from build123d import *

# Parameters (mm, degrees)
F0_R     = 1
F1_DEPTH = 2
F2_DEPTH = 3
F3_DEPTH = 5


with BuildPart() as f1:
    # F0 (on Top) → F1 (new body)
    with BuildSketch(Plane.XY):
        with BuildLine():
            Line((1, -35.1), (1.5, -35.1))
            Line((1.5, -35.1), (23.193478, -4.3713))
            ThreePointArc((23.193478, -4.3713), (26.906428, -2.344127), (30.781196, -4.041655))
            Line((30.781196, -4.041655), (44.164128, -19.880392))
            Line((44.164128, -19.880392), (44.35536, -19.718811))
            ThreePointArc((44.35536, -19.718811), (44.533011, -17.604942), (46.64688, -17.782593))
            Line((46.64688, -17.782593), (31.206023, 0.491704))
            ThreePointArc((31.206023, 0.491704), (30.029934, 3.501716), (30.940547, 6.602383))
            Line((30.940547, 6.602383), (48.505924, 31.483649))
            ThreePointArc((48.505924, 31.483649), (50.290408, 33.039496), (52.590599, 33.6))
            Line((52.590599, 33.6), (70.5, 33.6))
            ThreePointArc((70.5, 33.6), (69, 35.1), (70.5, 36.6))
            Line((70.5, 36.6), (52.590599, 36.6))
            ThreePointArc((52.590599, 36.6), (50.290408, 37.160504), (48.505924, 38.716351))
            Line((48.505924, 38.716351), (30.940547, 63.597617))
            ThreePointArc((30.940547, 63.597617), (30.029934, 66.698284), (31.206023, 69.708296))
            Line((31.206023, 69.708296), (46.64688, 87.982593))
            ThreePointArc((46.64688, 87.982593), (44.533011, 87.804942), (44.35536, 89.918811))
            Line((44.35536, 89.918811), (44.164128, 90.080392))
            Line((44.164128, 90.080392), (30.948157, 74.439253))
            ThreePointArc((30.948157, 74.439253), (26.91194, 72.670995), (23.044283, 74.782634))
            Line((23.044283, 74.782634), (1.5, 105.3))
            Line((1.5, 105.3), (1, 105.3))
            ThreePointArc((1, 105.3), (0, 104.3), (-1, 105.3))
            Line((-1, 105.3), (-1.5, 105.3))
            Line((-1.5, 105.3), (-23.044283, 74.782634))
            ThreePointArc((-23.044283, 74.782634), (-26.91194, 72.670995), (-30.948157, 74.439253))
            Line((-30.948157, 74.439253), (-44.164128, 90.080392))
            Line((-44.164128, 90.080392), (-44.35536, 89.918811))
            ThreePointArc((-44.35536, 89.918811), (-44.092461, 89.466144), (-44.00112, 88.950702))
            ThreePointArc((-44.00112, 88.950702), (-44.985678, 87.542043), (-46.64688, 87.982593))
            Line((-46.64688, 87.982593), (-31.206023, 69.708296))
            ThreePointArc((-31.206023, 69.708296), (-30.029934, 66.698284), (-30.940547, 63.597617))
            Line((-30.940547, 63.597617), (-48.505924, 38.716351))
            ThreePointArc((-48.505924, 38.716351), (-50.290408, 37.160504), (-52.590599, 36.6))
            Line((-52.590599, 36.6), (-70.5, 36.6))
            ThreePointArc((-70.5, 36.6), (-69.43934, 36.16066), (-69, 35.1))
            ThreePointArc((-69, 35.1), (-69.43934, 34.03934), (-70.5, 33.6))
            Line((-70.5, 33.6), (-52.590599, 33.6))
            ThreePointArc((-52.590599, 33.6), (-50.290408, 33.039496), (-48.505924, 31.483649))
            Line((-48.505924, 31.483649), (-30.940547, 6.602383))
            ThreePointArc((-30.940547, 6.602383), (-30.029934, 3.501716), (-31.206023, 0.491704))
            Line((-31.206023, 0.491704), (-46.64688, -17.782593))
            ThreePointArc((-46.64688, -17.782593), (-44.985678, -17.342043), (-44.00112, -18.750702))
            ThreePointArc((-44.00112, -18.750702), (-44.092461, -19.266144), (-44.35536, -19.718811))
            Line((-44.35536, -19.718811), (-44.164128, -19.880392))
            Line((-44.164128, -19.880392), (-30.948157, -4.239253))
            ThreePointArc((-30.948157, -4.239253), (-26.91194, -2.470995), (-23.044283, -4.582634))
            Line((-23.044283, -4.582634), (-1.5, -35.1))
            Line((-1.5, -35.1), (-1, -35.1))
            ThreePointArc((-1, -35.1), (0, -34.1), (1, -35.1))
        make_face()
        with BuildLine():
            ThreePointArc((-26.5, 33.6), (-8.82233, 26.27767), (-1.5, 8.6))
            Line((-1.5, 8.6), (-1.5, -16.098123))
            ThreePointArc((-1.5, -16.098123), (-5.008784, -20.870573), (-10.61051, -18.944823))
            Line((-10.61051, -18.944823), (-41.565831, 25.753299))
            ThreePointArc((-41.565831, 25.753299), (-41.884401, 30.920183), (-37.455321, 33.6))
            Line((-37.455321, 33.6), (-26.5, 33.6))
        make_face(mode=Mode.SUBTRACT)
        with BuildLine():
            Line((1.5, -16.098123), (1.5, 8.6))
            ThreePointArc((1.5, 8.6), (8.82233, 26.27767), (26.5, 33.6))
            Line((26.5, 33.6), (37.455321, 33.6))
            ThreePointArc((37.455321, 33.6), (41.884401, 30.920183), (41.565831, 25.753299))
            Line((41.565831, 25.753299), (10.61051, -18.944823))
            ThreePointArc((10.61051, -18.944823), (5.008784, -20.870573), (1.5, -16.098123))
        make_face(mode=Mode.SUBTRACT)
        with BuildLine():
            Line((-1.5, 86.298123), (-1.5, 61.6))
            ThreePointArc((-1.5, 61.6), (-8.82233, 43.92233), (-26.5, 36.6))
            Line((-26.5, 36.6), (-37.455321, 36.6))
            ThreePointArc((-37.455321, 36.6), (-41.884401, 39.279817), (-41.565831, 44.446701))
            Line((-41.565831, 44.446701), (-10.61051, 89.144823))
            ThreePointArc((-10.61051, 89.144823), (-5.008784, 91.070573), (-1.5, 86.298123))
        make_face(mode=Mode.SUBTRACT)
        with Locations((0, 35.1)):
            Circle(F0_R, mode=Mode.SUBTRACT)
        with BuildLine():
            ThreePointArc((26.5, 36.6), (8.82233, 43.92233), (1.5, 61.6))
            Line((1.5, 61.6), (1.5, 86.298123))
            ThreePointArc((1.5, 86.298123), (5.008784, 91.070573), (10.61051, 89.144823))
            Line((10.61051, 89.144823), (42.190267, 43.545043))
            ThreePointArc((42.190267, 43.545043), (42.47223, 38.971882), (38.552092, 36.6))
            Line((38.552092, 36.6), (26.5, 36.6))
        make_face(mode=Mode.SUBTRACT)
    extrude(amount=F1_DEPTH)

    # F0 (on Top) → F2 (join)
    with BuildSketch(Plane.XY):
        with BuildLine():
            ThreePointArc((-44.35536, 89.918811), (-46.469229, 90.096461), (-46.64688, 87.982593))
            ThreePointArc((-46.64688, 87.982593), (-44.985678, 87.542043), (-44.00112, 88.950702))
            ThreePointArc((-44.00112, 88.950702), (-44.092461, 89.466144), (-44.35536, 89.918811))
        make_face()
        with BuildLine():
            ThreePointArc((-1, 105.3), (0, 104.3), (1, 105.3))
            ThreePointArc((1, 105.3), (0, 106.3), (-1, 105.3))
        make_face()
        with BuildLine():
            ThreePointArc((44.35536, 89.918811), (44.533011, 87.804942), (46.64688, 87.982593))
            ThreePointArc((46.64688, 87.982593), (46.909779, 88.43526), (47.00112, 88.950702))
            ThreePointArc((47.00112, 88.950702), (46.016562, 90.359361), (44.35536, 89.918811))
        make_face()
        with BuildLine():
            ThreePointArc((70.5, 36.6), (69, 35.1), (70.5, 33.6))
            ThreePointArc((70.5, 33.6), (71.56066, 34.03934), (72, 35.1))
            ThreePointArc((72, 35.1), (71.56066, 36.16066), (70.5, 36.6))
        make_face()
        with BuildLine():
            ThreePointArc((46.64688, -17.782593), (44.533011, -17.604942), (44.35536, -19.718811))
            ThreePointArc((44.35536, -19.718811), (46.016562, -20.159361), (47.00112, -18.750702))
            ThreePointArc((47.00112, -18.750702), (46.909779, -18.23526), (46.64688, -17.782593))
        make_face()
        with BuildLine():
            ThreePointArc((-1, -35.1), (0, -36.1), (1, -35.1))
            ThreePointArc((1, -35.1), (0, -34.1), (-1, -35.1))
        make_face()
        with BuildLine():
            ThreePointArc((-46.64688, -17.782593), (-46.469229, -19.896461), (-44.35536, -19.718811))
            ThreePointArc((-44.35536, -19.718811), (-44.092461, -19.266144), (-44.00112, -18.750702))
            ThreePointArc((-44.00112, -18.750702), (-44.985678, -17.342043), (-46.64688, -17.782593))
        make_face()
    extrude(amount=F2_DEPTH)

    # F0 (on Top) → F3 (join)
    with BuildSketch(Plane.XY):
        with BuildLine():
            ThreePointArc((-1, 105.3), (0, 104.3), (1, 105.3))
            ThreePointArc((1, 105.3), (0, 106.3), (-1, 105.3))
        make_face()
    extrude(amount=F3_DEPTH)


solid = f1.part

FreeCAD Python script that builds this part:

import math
import FreeCAD as App
import Part
import Sketcher
Q = App.Units.Quantity

doc = App.newDocument("Part")
body = doc.addObject("PartDesign::Body", "Body")

# Sketch on XY plane
sketch1 = doc.addObject("Sketcher::SketchObject", "Sketch")
body.addObject(sketch1)
sketch1.AttachmentSupport = (doc.XY_Plane, [""])
sketch1.MapMode = "FlatFace"
sketch1.addGeometry(Part.LineSegment(App.Vector(1, -35.1, 0), App.Vector(1.5, -35.1, 0)), False)
sketch1.addGeometry(Part.LineSegment(App.Vector(1.5, -35.1, 0), App.Vector(23.193478, -4.3713, 0)), False)
sketch1.addGeometry(Part.ArcOfCircle(Part.Circle(App.Vector(27.114765, -7.139603, 0), App.Vector(0, 0, 1), 4.8), math.radians(40.196118), math.radians(144.779132)), False)
sketch1.addGeometry(Part.LineSegment(App.Vector(30.781196, -4.041655, 0), App.Vector(44.164128, -19.880392, 0)), False)
sketch1.addGeometry(Part.LineSegment(App.Vector(44.164128, -19.880392, 0), App.Vector(44.35536, -19.718811, 0)), False)
sketch1.addGeometry(Part.ArcOfCircle(Part.Circle(App.Vector(45.50112, -18.750702, 0), App.Vector(0, 0, 1), 1.5), math.radians(40.196112), math.radians(220.196112)), False)
sketch1.addGeometry(Part.LineSegment(App.Vector(46.64688, -17.782593, 0), App.Vector(31.206023, 0.491704, 0)), False)
sketch1.addGeometry(Part.ArcOfCircle(Part.Circle(App.Vector(35.025224, 3.718734, 0), App.Vector(0, 0, 1), 5.000002), math.radians(144.77915), math.radians(220.196106)), False)
sketch1.addGeometry(Part.LineSegment(App.Vector(30.940547, 6.602383, 0), App.Vector(48.505924, 31.483649, 0)), False)
sketch1.addGeometry(Part.ArcOfCircle(Part.Circle(App.Vector(52.590598, 28.600002, 0), App.Vector(0, 0, 1), 4.999998), math.radians(89.999986), math.radians(144.779151)), False)
sketch1.addGeometry(Part.LineSegment(App.Vector(52.590599, 33.6, 0), App.Vector(70.5, 33.6, 0)), False)
sketch1.addGeometry(Part.ArcOfCircle(Part.Circle(App.Vector(70.5, 35.1, 0), App.Vector(0, 0, 1), 1.5), math.radians(90), math.radians(270)), False)
sketch1.addGeometry(Part.LineSegment(App.Vector(70.5, 36.6, 0), App.Vector(52.590599, 36.6, 0)), False)
sketch1.addGeometry(Part.ArcOfCircle(Part.Circle(App.Vector(52.590598, 41.599998, 0), App.Vector(0, 0, 1), 4.999998), math.radians(-144.779151), math.radians(-89.999986)), False)
sketch1.addGeometry(Part.LineSegment(App.Vector(48.505924, 38.716351, 0), App.Vector(30.940547, 63.597617, 0)), False)
sketch1.addGeometry(Part.ArcOfCircle(Part.Circle(App.Vector(35.025224, 66.481266, 0), App.Vector(0, 0, 1), 5.000002), math.radians(139.803894), math.radians(215.22085)), False)
sketch1.addGeometry(Part.LineSegment(App.Vector(31.206023, 69.708296, 0), App.Vector(46.64688, 87.982593, 0)), False)
sketch1.addGeometry(Part.ArcOfCircle(Part.Circle(App.Vector(45.50112, 88.950702, 0), App.Vector(0, 0, 1), 1.5), math.radians(139.803888), math.radians(319.803888)), False)
sketch1.addGeometry(Part.LineSegment(App.Vector(44.35536, 89.918811, 0), App.Vector(44.164128, 90.080392, 0)), False)
sketch1.addGeometry(Part.LineSegment(App.Vector(44.164128, 90.080392, 0), App.Vector(30.948157, 74.439253, 0)), False)
sketch1.addGeometry(Part.ArcOfCircle(Part.Circle(App.Vector(27.128958, 77.666284, 0), App.Vector(0, 0, 1), 5.000001), math.radians(-144.779133), math.radians(-40.196128)), False)
sketch1.addGeometry(Part.LineSegment(App.Vector(23.044283, 74.782634, 0), App.Vector(1.5, 105.3, 0)), False)
sketch1.addGeometry(Part.LineSegment(App.Vector(1.5, 105.3, 0), App.Vector(1, 105.3, 0)), False)
sketch1.addGeometry(Part.ArcOfCircle(Part.Circle(App.Vector(0, 105.3, 0), App.Vector(0, 0, 1), 1), math.radians(180), math.radians(360)), False)
sketch1.addGeometry(Part.LineSegment(App.Vector(-1, 105.3, 0), App.Vector(-1.5, 105.3, 0)), False)
sketch1.addGeometry(Part.LineSegment(App.Vector(-1.5, 105.3, 0), App.Vector(-23.044283, 74.782634, 0)), False)
sketch1.addGeometry(Part.ArcOfCircle(Part.Circle(App.Vector(-27.128958, 77.666284, 0), App.Vector(0, 0, 1), 5.000001), math.radians(-139.803872), math.radians(-35.220867)), False)
sketch1.addGeometry(Part.LineSegment(App.Vector(-30.948157, 74.439253, 0), App.Vector(-44.164128, 90.080392, 0)), False)
sketch1.addGeometry(Part.LineSegment(App.Vector(-44.164128, 90.080392, 0), App.Vector(-44.35536, 89.918811, 0)), False)
sketch1.addGeometry(Part.ArcOfCircle(Part.Circle(App.Vector(-45.50112, 88.950703, 0), App.Vector(0, 0, 1), 1.5), math.radians(-0.000027), math.radians(40.196103)), False)
sketch1.addGeometry(Part.ArcOfCircle(Part.Circle(App.Vector(-45.50112, 88.950702, 0), App.Vector(0, 0, 1), 1.5), math.radians(-139.803888), math.radians(0.000005)), False)
sketch1.addGeometry(Part.LineSegment(App.Vector(-46.64688, 87.982593, 0), App.Vector(-31.206023, 69.708296, 0)), False)
sketch1.addGeometry(Part.ArcOfCircle(Part.Circle(App.Vector(-35.025224, 66.481266, 0), App.Vector(0, 0, 1), 5.000002), math.radians(-35.22085), math.radians(40.196106)), False)
sketch1.addGeometry(Part.LineSegment(App.Vector(-30.940547, 63.597617, 0), App.Vector(-48.505924, 38.716351, 0)), False)
sketch1.addGeometry(Part.ArcOfCircle(Part.Circle(App.Vector(-52.590598, 41.599998, 0), App.Vector(0, 0, 1), 4.999998), math.radians(-90.000014), math.radians(-35.220849)), False)
sketch1.addGeometry(Part.LineSegment(App.Vector(-52.590599, 36.6, 0), App.Vector(-70.5, 36.6, 0)), False)
sketch1.addGeometry(Part.ArcOfCircle(Part.Circle(App.Vector(-70.500001, 35.099999, 0), App.Vector(0, 0, 1), 1.500001), math.radians(0.000022), math.radians(89.999978)), False)
sketch1.addGeometry(Part.ArcOfCircle(Part.Circle(App.Vector(-70.500001, 35.100001, 0), App.Vector(0, 0, 1), 1.500001), math.radians(-89.999978), math.radians(-0.000022)), False)
sketch1.addGeometry(Part.LineSegment(App.Vector(-70.5, 33.6, 0), App.Vector(-52.590599, 33.6, 0)), False)
sketch1.addGeometry(Part.ArcOfCircle(Part.Circle(App.Vector(-52.590598, 28.600002, 0), App.Vector(0, 0, 1), 4.999998), math.radians(35.220849), math.radians(90.000014)), False)
sketch1.addGeometry(Part.LineSegment(App.Vector(-48.505924, 31.483649, 0), App.Vector(-30.940547, 6.602383, 0)), False)
sketch1.addGeometry(Part.ArcOfCircle(Part.Circle(App.Vector(-35.025224, 3.718734, 0), App.Vector(0, 0, 1), 5.000002), math.radians(-40.196106), math.radians(35.22085)), False)
sketch1.addGeometry(Part.LineSegment(App.Vector(-31.206023, 0.491704, 0), App.Vector(-46.64688, -17.782593, 0)), False)
sketch1.addGeometry(Part.ArcOfCircle(Part.Circle(App.Vector(-45.50112, -18.750702, 0), App.Vector(0, 0, 1), 1.5), math.radians(-0.000005), math.radians(139.803888)), False)
sketch1.addGeometry(Part.ArcOfCircle(Part.Circle(App.Vector(-45.50112, -18.750703, 0), App.Vector(0, 0, 1), 1.5), math.radians(-40.196103), math.radians(0.000027)), False)
sketch1.addGeometry(Part.LineSegment(App.Vector(-44.35536, -19.718811, 0), App.Vector(-44.164128, -19.880392, 0)), False)
sketch1.addGeometry(Part.LineSegment(App.Vector(-44.164128, -19.880392, 0), App.Vector(-30.948157, -4.239253, 0)), False)
sketch1.addGeometry(Part.ArcOfCircle(Part.Circle(App.Vector(-27.128958, -7.466284, 0), App.Vector(0, 0, 1), 5.000001), math.radians(35.220867), math.radians(139.803872)), False)
sketch1.addGeometry(Part.LineSegment(App.Vector(-23.044283, -4.582634, 0), App.Vector(-1.5, -35.1, 0)), False)
sketch1.addGeometry(Part.LineSegment(App.Vector(-1.5, -35.1, 0), App.Vector(-1, -35.1, 0)), False)
sketch1.addGeometry(Part.ArcOfCircle(Part.Circle(App.Vector(0, -35.1, 0), App.Vector(0, 0, 1), 1), math.radians(0), math.radians(180)), False)
sketch1.addGeometry(Part.LineSegment(App.Vector(-37.455321, 33.6, 0), App.Vector(-26.5, 33.6, 0)), False)
sketch1.addGeometry(Part.ArcOfCircle(Part.Circle(App.Vector(-26.499998, 8.600002, 0), App.Vector(0, 0, 1), 24.999998), math.radians(-0.000004), math.radians(90.000004)), False)
sketch1.addGeometry(Part.LineSegment(App.Vector(-1.5, 8.6, 0), App.Vector(-1.5, -16.098123, 0)), False)
sketch1.addGeometry(Part.ArcOfCircle(Part.Circle(App.Vector(-6.499999, -16.098124, 0), App.Vector(0, 0, 1), 4.999999), math.radians(-145.295793), math.radians(0.00001)), False)
sketch1.addGeometry(Part.LineSegment(App.Vector(-10.61051, -18.944823, 0), App.Vector(-41.565831, 25.753299, 0)), False)
sketch1.addGeometry(Part.ArcOfCircle(Part.Circle(App.Vector(-37.455321, 28.6, 0), App.Vector(0, 0, 1), 5), math.radians(90.000002), math.radians(214.704228)), False)
sketch1.addGeometry(Part.ArcOfCircle(Part.Circle(App.Vector(6.499999, -16.098124, 0), App.Vector(0, 0, 1), 4.999999), math.radians(179.99999), math.radians(325.295793)), False)
sketch1.addGeometry(Part.LineSegment(App.Vector(1.5, -16.098123, 0), App.Vector(1.5, 8.6, 0)), False)
sketch1.addGeometry(Part.ArcOfCircle(Part.Circle(App.Vector(26.499998, 8.600002, 0), App.Vector(0, 0, 1), 24.999998), math.radians(89.999996), math.radians(180.000004)), False)
sketch1.addGeometry(Part.LineSegment(App.Vector(26.5, 33.6, 0), App.Vector(37.455321, 33.6, 0)), False)
sketch1.addGeometry(Part.ArcOfCircle(Part.Circle(App.Vector(37.455321, 28.6, 0), App.Vector(0, 0, 1), 5), math.radians(-34.704228), math.radians(89.999998)), False)
sketch1.addGeometry(Part.LineSegment(App.Vector(41.565831, 25.753299, 0), App.Vector(10.61051, -18.944823, 0)), False)
sketch1.addGeometry(Part.Circle(App.Vector(0, 35.1, 0), App.Vector(0, 0, 1), 1), False)
sketch1.addGeometry(Part.ArcOfCircle(Part.Circle(App.Vector(-6.499999, 86.298124, 0), App.Vector(0, 0, 1), 4.999999), math.radians(-0.00001), math.radians(145.295793)), False)
sketch1.addGeometry(Part.LineSegment(App.Vector(-1.5, 86.298123, 0), App.Vector(-1.5, 61.6, 0)), False)
sketch1.addGeometry(Part.ArcOfCircle(Part.Circle(App.Vector(-26.499998, 61.599998, 0), App.Vector(0, 0, 1), 24.999998), math.radians(-90.000004), math.radians(0.000004)), False)
sketch1.addGeometry(Part.LineSegment(App.Vector(-26.5, 36.6, 0), App.Vector(-37.455321, 36.6, 0)), False)
sketch1.addGeometry(Part.ArcOfCircle(Part.Circle(App.Vector(-37.455321, 41.6, 0), App.Vector(0, 0, 1), 5), math.radians(145.295772), math.radians(269.999998)), False)
sketch1.addGeometry(Part.LineSegment(App.Vector(-41.565831, 44.446701, 0), App.Vector(-10.61051, 89.144823, 0)), False)
sketch1.addGeometry(Part.LineSegment(App.Vector(38.552092, 36.6, 0), App.Vector(26.5, 36.6, 0)), False)
sketch1.addGeometry(Part.ArcOfCircle(Part.Circle(App.Vector(26.499998, 61.599998, 0), App.Vector(0, 0, 1), 24.999998), math.radians(179.999996), math.radians(270.000004)), False)
sketch1.addGeometry(Part.LineSegment(App.Vector(1.5, 61.6, 0), App.Vector(1.5, 86.298123, 0)), False)
sketch1.addGeometry(Part.ArcOfCircle(Part.Circle(App.Vector(6.499999, 86.298124, 0), App.Vector(0, 0, 1), 4.999999), math.radians(34.704207), math.radians(180.00001)), False)
sketch1.addGeometry(Part.LineSegment(App.Vector(10.61051, 89.144823, 0), App.Vector(42.190267, 43.545043, 0)), False)
sketch1.addGeometry(Part.ArcOfCircle(Part.Circle(App.Vector(38.552091, 41.025455, 0), App.Vector(0, 0, 1), 4.425455), math.radians(-89.99999), math.radians(34.704215)), False)
sketch1.addConstraint(Sketcher.Constraint("Coincident", 0, 2, 1, 1))
sketch1.addConstraint(Sketcher.Constraint("Coincident", 1, 2, 2, 2))
sketch1.addConstraint(Sketcher.Constraint("Coincident", 2, 1, 3, 1))
sketch1.addConstraint(Sketcher.Constraint("Coincident", 3, 2, 4, 1))
sketch1.addConstraint(Sketcher.Constraint("Coincident", 4, 2, 5, 2))
sketch1.addConstraint(Sketcher.Constraint("Coincident", 5, 1, 6, 1))
sketch1.addConstraint(Sketcher.Constraint("Coincident", 6, 2, 7, 2))
sketch1.addConstraint(Sketcher.Constraint("Coincident", 7, 1, 8, 1))
sketch1.addConstraint(Sketcher.Constraint("Coincident", 8, 2, 9, 2))
sketch1.addConstraint(Sketcher.Constraint("Coincident", 9, 1, 10, 1))
sketch1.addConstraint(Sketcher.Constraint("Coincident", 10, 2, 11, 2))
sketch1.addConstraint(Sketcher.Constraint("Coincident", 11, 1, 12, 1))
sketch1.addConstraint(Sketcher.Constraint("Coincident", 12, 2, 13, 2))
sketch1.addConstraint(Sketcher.Constraint("Coincident", 13, 1, 14, 1))
sketch1.addConstraint(Sketcher.Constraint("Coincident", 14, 2, 15, 2))
sketch1.addConstraint(Sketcher.Constraint("Coincident", 15, 1, 16, 1))
sketch1.addConstraint(Sketcher.Constraint("Coincident", 16, 2, 17, 2))
sketch1.addConstraint(Sketcher.Constraint("Coincident", 17, 1, 18, 1))
sketch1.addConstraint(Sketcher.Constraint("Coincident", 18, 2, 19, 1))
sketch1.addConstraint(Sketcher.Constraint("Coincident", 19, 2, 20, 2))
sketch1.addConstraint(Sketcher.Constraint("Coincident", 20, 1, 21, 1))
sketch1.addConstraint(Sketcher.Constraint("Coincident", 21, 2, 22, 1))
sketch1.addConstraint(Sketcher.Constraint("Coincident", 22, 2, 23, 2))
sketch1.addConstraint(Sketcher.Constraint("Coincident", 23, 1, 24, 1))
sketch1.addConstraint(Sketcher.Constraint("Coincident", 24, 2, 25, 1))
sketch1.addConstraint(Sketcher.Constraint("Coincident", 25, 2, 26, 2))
sketch1.addConstraint(Sketcher.Constraint("Coincident", 26, 1, 27, 1))
sketch1.addConstraint(Sketcher.Constraint("Coincident", 27, 2, 28, 1))
sketch1.addConstraint(Sketcher.Constraint("Coincident", 28, 2, 29, 2))
sketch1.addConstraint(Sketcher.Constraint("Coincident", 29, 1, 30, 2))
sketch1.addConstraint(Sketcher.Constraint("Coincident", 30, 1, 31, 1))
sketch1.addConstraint(Sketcher.Constraint("Coincident", 31, 2, 32, 2))
sketch1.addConstraint(Sketcher.Constraint("Coincident", 32, 1, 33, 1))
sketch1.addConstraint(Sketcher.Constraint("Coincident", 33, 2, 34, 2))
sketch1.addConstraint(Sketcher.Constraint("Coincident", 34, 1, 35, 1))
sketch1.addConstraint(Sketcher.Constraint("Coincident", 35, 2, 36, 2))
sketch1.addConstraint(Sketcher.Constraint("Coincident", 36, 1, 37, 2))
sketch1.addConstraint(Sketcher.Constraint("Coincident", 37, 1, 38, 1))
sketch1.addConstraint(Sketcher.Constraint("Coincident", 38, 2, 39, 2))
sketch1.addConstraint(Sketcher.Constraint("Coincident", 39, 1, 40, 1))
sketch1.addConstraint(Sketcher.Constraint("Coincident", 40, 2, 41, 2))
sketch1.addConstraint(Sketcher.Constraint("Coincident", 41, 1, 42, 1))
sketch1.addConstraint(Sketcher.Constraint("Coincident", 42, 2, 43, 2))
sketch1.addConstraint(Sketcher.Constraint("Coincident", 43, 1, 44, 2))
sketch1.addConstraint(Sketcher.Constraint("Coincident", 44, 1, 45, 1))
sketch1.addConstraint(Sketcher.Constraint("Coincident", 45, 2, 46, 1))
sketch1.addConstraint(Sketcher.Constraint("Coincident", 46, 2, 47, 2))
sketch1.addConstraint(Sketcher.Constraint("Coincident", 47, 1, 48, 1))
sketch1.addConstraint(Sketcher.Constraint("Coincident", 48, 2, 49, 1))
sketch1.addConstraint(Sketcher.Constraint("Coincident", 49, 2, 50, 2))
sketch1.addConstraint(Sketcher.Constraint("Coincident", 50, 1, 0, 1))
sketch1.addConstraint(Sketcher.Constraint("Coincident", 51, 2, 52, 2))
sketch1.addConstraint(Sketcher.Constraint("Coincident", 52, 1, 53, 1))
sketch1.addConstraint(Sketcher.Constraint("Coincident", 53, 2, 54, 2))
sketch1.addConstraint(Sketcher.Constraint("Coincident", 54, 1, 55, 1))
sketch1.addConstraint(Sketcher.Constraint("Coincident", 55, 2, 56, 2))
sketch1.addConstraint(Sketcher.Constraint("Coincident", 56, 1, 51, 1))
sketch1.addConstraint(Sketcher.Constraint("Coincident", 57, 1, 58, 1))
sketch1.addConstraint(Sketcher.Constraint("Coincident", 58, 2, 59, 2))
sketch1.addConstraint(Sketcher.Constraint("Coincident", 59, 1, 60, 1))
sketch1.addConstraint(Sketcher.Constraint("Coincident", 60, 2, 61, 2))
sketch1.addConstraint(Sketcher.Constraint("Coincident", 61, 1, 62, 1))
sketch1.addConstraint(Sketcher.Constraint("Coincident", 62, 2, 57, 2))
sketch1.addConstraint(Sketcher.Constraint("Coincident", 64, 1, 65, 1))
sketch1.addConstraint(Sketcher.Constraint("Coincident", 65, 2, 66, 2))
sketch1.addConstraint(Sketcher.Constraint("Coincident", 66, 1, 67, 1))
sketch1.addConstraint(Sketcher.Constraint("Coincident", 67, 2, 68, 2))
sketch1.addConstraint(Sketcher.Constraint("Coincident", 68, 1, 69, 1))
sketch1.addConstraint(Sketcher.Constraint("Coincident", 69, 2, 64, 2))
sketch1.addConstraint(Sketcher.Constraint("Coincident", 70, 2, 71, 2))
sketch1.addConstraint(Sketcher.Constraint("Coincident", 71, 1, 72, 1))
sketch1.addConstraint(Sketcher.Constraint("Coincident", 72, 2, 73, 2))
sketch1.addConstraint(Sketcher.Constraint("Coincident", 73, 1, 74, 1))
sketch1.addConstraint(Sketcher.Constraint("Coincident", 74, 2, 75, 2))
sketch1.addConstraint(Sketcher.Constraint("Coincident", 75, 1, 70, 1))
sketch1.addConstraint(Sketcher.Constraint("Horizontal", 0))
sketch1.addConstraint(Sketcher.Constraint("Horizontal", 10))
sketch1.addConstraint(Sketcher.Constraint("Horizontal", 12))
sketch1.addConstraint(Sketcher.Constraint("Horizontal", 22))
sketch1.addConstraint(Sketcher.Constraint("Horizontal", 24))
sketch1.addConstraint(Sketcher.Constraint("Horizontal", 35))
sketch1.addConstraint(Sketcher.Constraint("Horizontal", 38))
sketch1.addConstraint(Sketcher.Constraint("Horizontal", 49))
sketch1.addConstraint(Sketcher.Constraint("Horizontal", 51))
sketch1.addConstraint(Sketcher.Constraint("Vertical", 53))
sketch1.addConstraint(Sketcher.Constraint("Vertical", 58))
sketch1.addConstraint(Sketcher.Constraint("Horizontal", 60))
sketch1.addConstraint(Sketcher.Constraint("Vertical", 65))
sketch1.addConstraint(Sketcher.Constraint("Horizontal", 67))
sketch1.addConstraint(Sketcher.Constraint("Horizontal", 70))
sketch1.addConstraint(Sketcher.Constraint("Vertical", 72))
sketch1.addConstraint(Sketcher.Constraint("Coincident", 30, 3, 29, 3))
sketch1.addConstraint(Sketcher.Constraint("Coincident", 37, 3, 36, 3))
sketch1.addConstraint(Sketcher.Constraint("Coincident", 44, 3, 43, 3))
sketch1.addConstraint(Sketcher.Constraint("PointOnObject", 23, 3, -2))
sketch1.addConstraint(Sketcher.Constraint("PointOnObject", 50, 3, -2))
sketch1.addConstraint(Sketcher.Constraint("PointOnObject", 63, 3, -2))
sketch1.addConstraint(Sketcher.Constraint("Diameter", 63, Q("2 mm")))
sketch1.addConstraint(Sketcher.Constraint("Radius", 7, Q("5.000002 mm")))
sketch1.addConstraint(Sketcher.Constraint("Radius", 15, Q("5.000002 mm")))
sketch1.addConstraint(Sketcher.Constraint("Radius", 20, Q("5.000001 mm")))
sketch1.addConstraint(Sketcher.Constraint("Radius", 23, Q("1 mm")))
sketch1.addConstraint(Sketcher.Constraint("Radius", 26, Q("5.000001 mm")))
sketch1.addConstraint(Sketcher.Constraint("Radius", 32, Q("5.000002 mm")))
sketch1.addConstraint(Sketcher.Constraint("Radius", 41, Q("5.000002 mm")))
sketch1.addConstraint(Sketcher.Constraint("Radius", 47, Q("5.000001 mm")))
sketch1.addConstraint(Sketcher.Constraint("Radius", 50, Q("1 mm")))
sketch1.addConstraint(Sketcher.Constraint("Radius", 52, Q("24.999998 mm")))
sketch1.addConstraint(Sketcher.Constraint("Radius", 54, Q("4.999999 mm")))
sketch1.addConstraint(Sketcher.Constraint("Radius", 56, Q("5 mm")))
sketch1.addConstraint(Sketcher.Constraint("Radius", 57, Q("4.999999 mm")))
sketch1.addConstraint(Sketcher.Constraint("Radius", 59, Q("24.999998 mm")))
sketch1.addConstraint(Sketcher.Constraint("Radius", 61, Q("5 mm")))
sketch1.addConstraint(Sketcher.Constraint("Radius", 64, Q("4.999999 mm")))
sketch1.addConstraint(Sketcher.Constraint("Radius", 66, Q("24.999998 mm")))
sketch1.addConstraint(Sketcher.Constraint("Radius", 68, Q("5 mm")))
sketch1.addConstraint(Sketcher.Constraint("Radius", 71, Q("24.999998 mm")))
sketch1.addConstraint(Sketcher.Constraint("Radius", 73, Q("4.999999 mm")))
sketch1.addConstraint(Sketcher.Constraint("Radius", 2, Q("4.8 mm")))
sketch1.addConstraint(Sketcher.Constraint("Radius", 5, Q("1.5 mm")))
sketch1.addConstraint(Sketcher.Constraint("Radius", 11, Q("1.5 mm")))
sketch1.addConstraint(Sketcher.Constraint("Radius", 17, Q("1.5 mm")))
sketch1.addConstraint(Sketcher.Constraint("Radius", 29, Q("1.5 mm")))
sketch1.addConstraint(Sketcher.Constraint("Radius", 36, Q("1.500001 mm")))
sketch1.addConstraint(Sketcher.Constraint("Radius", 43, Q("1.5 mm")))
sketch1.addConstraint(Sketcher.Constraint("DistanceX", 0, 1, 0, 2, Q("0.5 mm")))
sketch1.addConstraint(Sketcher.Constraint("DistanceX", 22, 2, 22, 1, Q("0.5 mm")))
sketch1.addConstraint(Sketcher.Constraint("DistanceX", 24, 2, 24, 1, Q("0.5 mm")))
sketch1.addConstraint(Sketcher.Constraint("DistanceX", 49, 1, 49, 2, Q("0.5 mm")))
sketch1.addConstraint(Sketcher.Constraint("DistanceX", 36, 1, -1, 1, Q("69 mm")))
sketch1.addConstraint(Sketcher.Constraint("DistanceX", -1, 1, 11, 3, Q("70.5 mm")))
sketch1.addConstraint(Sketcher.Constraint("DistanceY", -1, 1, 11, 3, Q("35.1 mm")))
sketch1.addConstraint(Sketcher.Constraint("DistanceY", -1, 1, 23, 3, Q("105.3 mm")))
sketch1.addConstraint(Sketcher.Constraint("DistanceY", -1, 1, 36, 3, Q("35.099999 mm")))
sketch1.addConstraint(Sketcher.Constraint("DistanceY", 50, 3, -1, 1, Q("35.1 mm")))
sketch1.addConstraint(Sketcher.Constraint("DistanceX", 52, 3, -1, 1, Q("26.499998 mm")))
sketch1.addConstraint(Sketcher.Constraint("DistanceY", -1, 1, 52, 3, Q("8.600002 mm")))
sketch1.addConstraint(Sketcher.Constraint("DistanceX", -1, 1, 57, 3, Q("6.499999 mm")))
sketch1.addConstraint(Sketcher.Constraint("DistanceY", -1, 1, 59, 3, Q("8.600002 mm")))
sketch1.addConstraint(Sketcher.Constraint("DistanceY", -1, 1, 63, 3, Q("35.1 mm")))
sketch1.addConstraint(Sketcher.Constraint("DistanceX", 64, 3, -1, 1, Q("6.499999 mm")))
sketch1.addConstraint(Sketcher.Constraint("DistanceY", -1, 1, 66, 3, Q("61.599998 mm")))
sketch1.addConstraint(Sketcher.Constraint("DistanceX", -1, 1, 71, 3, Q("26.499998 mm")))
sketch1.addConstraint(Sketcher.Constraint("DistanceY", -1, 1, 71, 3, Q("61.599998 mm")))
sketch1.addConstraint(Sketcher.Constraint("DistanceY", 0, 2, -1, 1, Q("35.1 mm")))
sketch1.addConstraint(Sketcher.Constraint("DistanceX", -1, 1, 10, 2, Q("70.5 mm")))
sketch1.addConstraint(Sketcher.Constraint("DistanceX", -1, 1, 11, 1, Q("70.5 mm")))
sketch1.addConstraint(Sketcher.Constraint("DistanceY", -1, 1, 21, 2, Q("105.3 mm")))
sketch1.addConstraint(Sketcher.Constraint("DistanceY", -1, 1, 23, 1, Q("105.3 mm")))
sketch1.addConstraint(Sketcher.Constraint("DistanceX", 35, 2, -1, 1, Q("70.5 mm")))
sketch1.addConstraint(Sketcher.Constraint("DistanceY", -1, 1, 36, 1, Q("35.1 mm")))
sketch1.addConstraint(Sketcher.Constraint("DistanceX", 37, 1, -1, 1, Q("70.5 mm")))
sketch1.addConstraint(Sketcher.Constraint("DistanceY", 48, 2, -1, 1, Q("35.1 mm")))
sketch1.addConstraint(Sketcher.Constraint("DistanceX", 51, 2, -1, 1, Q("26.5 mm")))
sketch1.addConstraint(Sketcher.Constraint("DistanceY", -1, 1, 52, 1, Q("8.6 mm")))
sketch1.addConstraint(Sketcher.Constraint("DistanceY", -1, 1, 58, 2, Q("8.6 mm")))
sketch1.addConstraint(Sketcher.Constraint("DistanceX", -1, 1, 59, 1, Q("26.5 mm")))
sketch1.addConstraint(Sketcher.Constraint("DistanceY", -1, 1, 65, 2, Q("61.6 mm")))
sketch1.addConstraint(Sketcher.Constraint("DistanceX", 66, 1, -1, 1, Q("26.5 mm")))
sketch1.addConstraint(Sketcher.Constraint("DistanceX", -1, 1, 70, 2, Q("26.5 mm")))
sketch1.addConstraint(Sketcher.Constraint("DistanceY", -1, 1, 71, 1, Q("61.6 mm")))
sketch1.addConstraint(Sketcher.Constraint("DistanceX", 10, 1, 10, 2, Q("17.909401 mm")))
sketch1.addConstraint(Sketcher.Constraint("DistanceX", 12, 2, 12, 1, Q("17.909401 mm")))
sketch1.addConstraint(Sketcher.Constraint("DistanceX", 35, 2, 35, 1, Q("17.909401 mm")))
sketch1.addConstraint(Sketcher.Constraint("DistanceX", 38, 1, 38, 2, Q("17.909401 mm")))
sketch1.addConstraint(Sketcher.Constraint("Radius", 9, Q("4.999998 mm")))
sketch1.addConstraint(Sketcher.Constraint("Radius", 13, Q("4.999998 mm")))
sketch1.addConstraint(Sketcher.Constraint("Radius", 34, Q("4.999998 mm")))
sketch1.addConstraint(Sketcher.Constraint("Radius", 39, Q("4.999998 mm")))
sketch1.addConstraint(Sketcher.Constraint("Radius", 75, Q("4.425455 mm")))
sketch1.addConstraint(Sketcher.Constraint("DistanceX", 51, 1, 51, 2, Q("10.955321 mm")))
sketch1.addConstraint(Sketcher.Constraint("DistanceX", 60, 1, 60, 2, Q("10.955321 mm")))
sketch1.addConstraint(Sketcher.Constraint("DistanceX", 67, 2, 67, 1, Q("10.955321 mm")))
sketch1.addConstraint(Sketcher.Constraint("DistanceY", -1, 1, 30, 3, Q("88.950702 mm")))
sketch1.addConstraint(Sketcher.Constraint("DistanceY", 43, 3, -1, 1, Q("18.750702 mm")))
sketch1.addConstraint(Sketcher.Constraint("DistanceY", 1, 2, -1, 1, Q("4.3713 mm")))
sketch1.addConstraint(Sketcher.Constraint("DistanceY", -1, 1, 55, 2, Q("25.753299 mm")))
sketch1.addConstraint(Sketcher.Constraint("DistanceY", -1, 1, 61, 1, Q("25.753299 mm")))
sketch1.addConstraint(Sketcher.Constraint("DistanceY", -1, 1, 68, 1, Q("44.446701 mm")))
sketch1.addConstraint(Sketcher.Constraint("Distance", 3, Q("20.735681 mm")))
sketch1.addConstraint(Sketcher.Constraint("Distance", 19, Q("20.47699 mm")))
sketch1.addConstraint(Sketcher.Constraint("Distance", 27, Q("20.47699 mm")))
sketch1.addConstraint(Sketcher.Constraint("Distance", 46, Q("20.47699 mm")))
sketch1.addConstraint(Sketcher.Constraint("DistanceX", 70, 2, 70, 1, Q("12.052092 mm")))
sketch1.addConstraint(Sketcher.Constraint("DistanceY", 53, 2, 53, 1, Q("24.698123 mm")))
sketch1.addConstraint(Sketcher.Constraint("DistanceY", 58, 1, 58, 2, Q("24.698123 mm")))
sketch1.addConstraint(Sketcher.Constraint("DistanceY", 65, 2, 65, 1, Q("24.698123 mm")))
sketch1.addConstraint(Sketcher.Constraint("DistanceY", 72, 1, 72, 2, Q("24.698123 mm")))
sketch1.addConstraint(Sketcher.Constraint("DistanceX", -1, 1, 5, 3, Q("45.50112 mm")))
sketch1.addConstraint(Sketcher.Constraint("DistanceX", -1, 1, 17, 3, Q("45.50112 mm")))
sketch1.addConstraint(Sketcher.Constraint("DistanceX", -1, 1, 20, 3, Q("27.128958 mm")))
sketch1.addConstraint(Sketcher.Constraint("DistanceX", 26, 3, -1, 1, Q("27.128958 mm")))
sketch1.addConstraint(Sketcher.Constraint("DistanceX", 29, 3, -1, 1, Q("45.50112 mm")))
sketch1.addConstraint(Sketcher.Constraint("DistanceX", 43, 3, -1, 1, Q("45.50112 mm")))
sketch1.addConstraint(Sketcher.Constraint("DistanceX", 47, 3, -1, 1, Q("27.128958 mm")))
sketch1.addConstraint(Sketcher.Constraint("DistanceX", 56, 3, -1, 1, Q("37.455321 mm")))
sketch1.addConstraint(Sketcher.Constraint("DistanceX", -1, 1, 61, 3, Q("37.455321 mm")))
sketch1.addConstraint(Sketcher.Constraint("DistanceX", 68, 3, -1, 1, Q("37.455321 mm")))
sketch1.addConstraint(Sketcher.Constraint("DistanceX", -1, 1, 75, 3, Q("38.552091 mm")))
sketch1.addConstraint(Sketcher.Constraint("DistanceX", -1, 1, 4, 2, Q("44.35536 mm")))
sketch1.addConstraint(Sketcher.Constraint("DistanceY", 4, 2, -1, 1, Q("19.718811 mm")))
sketch1.addConstraint(Sketcher.Constraint("DistanceX", -1, 1, 5, 1, Q("46.64688 mm")))
sketch1.addConstraint(Sketcher.Constraint("DistanceY", -1, 1, 8, 2, Q("31.483649 mm")))
sketch1.addConstraint(Sketcher.Constraint("DistanceY", -1, 1, 13, 1, Q("38.716351 mm")))
sketch1.addConstraint(Sketcher.Constraint("DistanceX", -1, 1, 16, 2, Q("46.64688 mm")))
sketch1.addConstraint(Sketcher.Constraint("DistanceX", -1, 1, 17, 1, Q("44.35536 mm")))
sketch1.addConstraint(Sketcher.Constraint("DistanceY", -1, 1, 17, 1, Q("89.918811 mm")))
sketch1.addConstraint(Sketcher.Constraint("DistanceX", 28, 2, -1, 1, Q("44.35536 mm")))
sketch1.addConstraint(Sketcher.Constraint("DistanceX", 30, 1, -1, 1, Q("46.64688 mm")))
sketch1.addConstraint(Sketcher.Constraint("DistanceY", -1, 1, 33, 2, Q("38.716351 mm")))
sketch1.addConstraint(Sketcher.Constraint("DistanceY", -1, 1, 39, 1, Q("31.483649 mm")))
sketch1.addConstraint(Sketcher.Constraint("DistanceX", 42, 2, -1, 1, Q("46.64688 mm")))
sketch1.addConstraint(Sketcher.Constraint("DistanceX", 44, 1, -1, 1, Q("44.35536 mm")))
sketch1.addConstraint(Sketcher.Constraint("DistanceX", 54, 1, -1, 1, Q("10.61051 mm")))
sketch1.addConstraint(Sketcher.Constraint("DistanceX", -1, 1, 62, 2, Q("10.61051 mm")))
sketch1.addConstraint(Sketcher.Constraint("DistanceX", 69, 2, -1, 1, Q("10.61051 mm")))
sketch1.addConstraint(Sketcher.Constraint("DistanceX", -1, 1, 73, 1, Q("10.61051 mm")))
sketch1.addConstraint(Sketcher.Constraint("Distance", 1, Q("37.614625 mm")))
sketch1.addConstraint(Sketcher.Constraint("Distance", 4, Q("0.250356 mm")))
sketch1.addConstraint(Sketcher.Constraint("Distance", 6, Q("23.924255 mm")))
sketch1.addConstraint(Sketcher.Constraint("Distance", 8, Q("30.456853 mm")))
sketch1.addConstraint(Sketcher.Constraint("Distance", 14, Q("30.456853 mm")))
sketch1.addConstraint(Sketcher.Constraint("Distance", 16, Q("23.924255 mm")))
sketch1.addConstraint(Sketcher.Constraint("Distance", 18, Q("0.250356 mm")))
sketch1.addConstraint(Sketcher.Constraint("Distance", 21, Q("37.355933 mm")))
sketch1.addConstraint(Sketcher.Constraint("Distance", 25, Q("37.355933 mm")))
sketch1.addConstraint(Sketcher.Constraint("Distance", 28, Q("0.250356 mm")))
sketch1.addConstraint(Sketcher.Constraint("Distance", 31, Q("23.924255 mm")))
sketch1.addConstraint(Sketcher.Constraint("Distance", 33, Q("30.456853 mm")))
sketch1.addConstraint(Sketcher.Constraint("Distance", 40, Q("30.456853 mm")))
sketch1.addConstraint(Sketcher.Constraint("Distance", 42, Q("23.924255 mm")))
sketch1.addConstraint(Sketcher.Constraint("Distance", 45, Q("0.250356 mm")))
sketch1.addConstraint(Sketcher.Constraint("Distance", 48, Q("37.355933 mm")))
sketch1.addConstraint(Sketcher.Constraint("Distance", 55, Q("54.370525 mm")))
sketch1.addConstraint(Sketcher.Constraint("Distance", 62, Q("54.370525 mm")))
sketch1.addConstraint(Sketcher.Constraint("Distance", 69, Q("54.370525 mm")))
sketch1.addConstraint(Sketcher.Constraint("Distance", 74, Q("55.467297 mm")))
sketch1.addConstraint(Sketcher.Constraint("DistanceX", -1, 1, 2, 3, Q("27.114765 mm")))
sketch1.addConstraint(Sketcher.Constraint("DistanceX", -1, 1, 7, 3, Q("35.025224 mm")))
sketch1.addConstraint(Sketcher.Constraint("DistanceY", -1, 1, 7, 3, Q("3.718734 mm")))
sketch1.addConstraint(Sketcher.Constraint("DistanceX", -1, 1, 9, 3, Q("52.590598 mm")))
sketch1.addConstraint(Sketcher.Constraint("DistanceX", -1, 1, 13, 3, Q("52.590598 mm")))
sketch1.addConstraint(Sketcher.Constraint("DistanceX", -1, 1, 15, 3, Q("35.025224 mm")))
sketch1.addConstraint(Sketcher.Constraint("DistanceY", -1, 1, 15, 3, Q("66.481266 mm")))
sketch1.addConstraint(Sketcher.Constraint("DistanceY", -1, 1, 20, 3, Q("77.666284 mm")))
sketch1.addConstraint(Sketcher.Constraint("DistanceY", -1, 1, 26, 3, Q("77.666284 mm")))
sketch1.addConstraint(Sketcher.Constraint("DistanceX", 32, 3, -1, 1, Q("35.025224 mm")))
sketch1.addConstraint(Sketcher.Constraint("DistanceY", -1, 1, 32, 3, Q("66.481266 mm")))
sketch1.addConstraint(Sketcher.Constraint("DistanceX", 34, 3, -1, 1, Q("52.590598 mm")))
sketch1.addConstraint(Sketcher.Constraint("DistanceX", 39, 3, -1, 1, Q("52.590598 mm")))
sketch1.addConstraint(Sketcher.Constraint("DistanceX", 41, 3, -1, 1, Q("35.025224 mm")))
sketch1.addConstraint(Sketcher.Constraint("DistanceY", -1, 1, 41, 3, Q("3.718734 mm")))
sketch1.addConstraint(Sketcher.Constraint("DistanceY", 47, 3, -1, 1, Q("7.466284 mm")))
sketch1.addConstraint(Sketcher.Constraint("DistanceY", -1, 1, 73, 3, Q("86.298124 mm")))
sketch1.addConstraint(Sketcher.Constraint("DistanceX", -1, 1, 2, 1, Q("30.781196 mm")))
sketch1.addConstraint(Sketcher.Constraint("DistanceX", -1, 1, 18, 2, Q("44.164128 mm")))
sketch1.addConstraint(Sketcher.Constraint("DistanceX", 26, 1, -1, 1, Q("30.948157 mm")))
sketch1.addConstraint(Sketcher.Constraint("DistanceY", -1, 1, 29, 1, Q("88.950702 mm")))
sketch1.addConstraint(Sketcher.Constraint("DistanceY", 43, 1, -1, 1, Q("18.750702 mm")))
sketch1.addConstraint(Sketcher.Constraint("DistanceX", 45, 2, -1, 1, Q("44.164128 mm")))
pad1 = doc.addObject("PartDesign::Pad", "Pad")
body.addObject(pad1)
pad1.Profile = sketch1
pad1.Length = 2

# Sketch on XY plane
sketch2 = doc.addObject("Sketcher::SketchObject", "Sketch001")
body.addObject(sketch2)
sketch2.AttachmentSupport = (doc.XY_Plane, [""])
sketch2.MapMode = "FlatFace"
sketch2.addGeometry(Part.ArcOfCircle(Part.Circle(App.Vector(-45.50112, 88.950701, 0), App.Vector(0, 0, 1), 1.5), math.radians(40.196141), math.radians(220.196083)), False)
sketch2.addGeometry(Part.ArcOfCircle(Part.Circle(App.Vector(-45.50112, 88.950702, 0), App.Vector(0, 0, 1), 1.5), math.radians(-139.803888), math.radians(0.000005)), False)
sketch2.addGeometry(Part.ArcOfCircle(Part.Circle(App.Vector(-45.50112, 88.950703, 0), App.Vector(0, 0, 1), 1.5), math.radians(-0.000027), math.radians(40.196103)), False)
sketch2.addGeometry(Part.Circle(App.Vector(0, 105.3, 0), App.Vector(0, 0, 1), 1), False)
sketch2.addGeometry(Part.ArcOfCircle(Part.Circle(App.Vector(45.50112, 88.950702, 0), App.Vector(0, 0, 1), 1.5), math.radians(139.803888), math.radians(319.803888)), False)
sketch2.addGeometry(Part.ArcOfCircle(Part.Circle(App.Vector(45.50112, 88.950701, 0), App.Vector(0, 0, 1), 1.5), math.radians(-40.196103), math.radians(0.000027)), False)
sketch2.addGeometry(Part.ArcOfCircle(Part.Circle(App.Vector(45.50112, 88.950702, 0), App.Vector(0, 0, 1), 1.5), math.radians(-0.000005), math.radians(139.803888)), False)
sketch2.addGeometry(Part.ArcOfCircle(Part.Circle(App.Vector(70.5, 35.1, 0), App.Vector(0, 0, 1), 1.5), math.radians(90), math.radians(270)), False)
sketch2.addGeometry(Part.ArcOfCircle(Part.Circle(App.Vector(70.499999, 35.100001, 0), App.Vector(0, 0, 1), 1.500001), math.radians(-89.999978), math.radians(-0.000022)), False)
sketch2.addGeometry(Part.ArcOfCircle(Part.Circle(App.Vector(70.499999, 35.099999, 0), App.Vector(0, 0, 1), 1.500001), math.radians(0.000022), math.radians(89.999978)), False)
sketch2.addGeometry(Part.ArcOfCircle(Part.Circle(App.Vector(45.50112, -18.750702, 0), App.Vector(0, 0, 1), 1.5), math.radians(40.196112), math.radians(220.196112)), False)
sketch2.addGeometry(Part.ArcOfCircle(Part.Circle(App.Vector(45.50112, -18.750702, 0), App.Vector(0, 0, 1), 1.5), math.radians(-139.803888), math.radians(0.000005)), False)
sketch2.addGeometry(Part.ArcOfCircle(Part.Circle(App.Vector(45.50112, -18.750701, 0), App.Vector(0, 0, 1), 1.5), math.radians(-0.000027), math.radians(40.196103)), False)
sketch2.addGeometry(Part.Circle(App.Vector(0, -35.1, 0), App.Vector(0, 0, 1), 1), False)
sketch2.addGeometry(Part.ArcOfCircle(Part.Circle(App.Vector(-45.50112, -18.750701, 0), App.Vector(0, 0, 1), 1.5), math.radians(139.803917), math.radians(319.803859)), False)
sketch2.addGeometry(Part.ArcOfCircle(Part.Circle(App.Vector(-45.50112, -18.750703, 0), App.Vector(0, 0, 1), 1.5), math.radians(-40.196103), math.radians(0.000027)), False)
sketch2.addGeometry(Part.ArcOfCircle(Part.Circle(App.Vector(-45.50112, -18.750702, 0), App.Vector(0, 0, 1), 1.5), math.radians(-0.000005), math.radians(139.803888)), False)
sketch2.addConstraint(Sketcher.Constraint("Tangent", 0, 2, 1, 1))
sketch2.addConstraint(Sketcher.Constraint("Tangent", 1, 2, 2, 1))
sketch2.addConstraint(Sketcher.Constraint("Tangent", 2, 2, 0, 1))
sketch2.addConstraint(Sketcher.Constraint("Tangent", 4, 2, 5, 1))
sketch2.addConstraint(Sketcher.Constraint("Tangent", 5, 2, 6, 1))
sketch2.addConstraint(Sketcher.Constraint("Tangent", 6, 2, 4, 1))
sketch2.addConstraint(Sketcher.Constraint("Tangent", 7, 2, 8, 1))
sketch2.addConstraint(Sketcher.Constraint("Tangent", 8, 2, 9, 1))
sketch2.addConstraint(Sketcher.Constraint("Tangent", 9, 2, 7, 1))
sketch2.addConstraint(Sketcher.Constraint("Tangent", 10, 2, 11, 1))
sketch2.addConstraint(Sketcher.Constraint("Tangent", 11, 2, 12, 1))
sketch2.addConstraint(Sketcher.Constraint("Tangent", 12, 2, 10, 1))
sketch2.addConstraint(Sketcher.Constraint("Tangent", 14, 2, 15, 1))
sketch2.addConstraint(Sketcher.Constraint("Tangent", 15, 2, 16, 1))
sketch2.addConstraint(Sketcher.Constraint("Tangent", 16, 2, 14, 1))
sketch2.addConstraint(Sketcher.Constraint("Equal", 2, 4))
sketch2.addConstraint(Sketcher.Constraint("Equal", 6, 7))
sketch2.addConstraint(Sketcher.Constraint("Equal", 9, 10))
sketch2.addConstraint(Sketcher.Constraint("Equal", 3, 13))
sketch2.addConstraint(Sketcher.Constraint("Equal", 12, 14))
sketch2.addConstraint(Sketcher.Constraint("Symmetric", 0, 3, 4, 3, -2))
sketch2.addConstraint(Sketcher.Constraint("Symmetric", 10, 3, 14, 3, -2))
sketch2.addConstraint(Sketcher.Constraint("PointOnObject", 3, 3, -2))
sketch2.addConstraint(Sketcher.Constraint("PointOnObject", 13, 3, -2))
sketch2.addConstraint(Sketcher.Constraint("Horizontal", 6, 3, 1, 2))
sketch2.addConstraint(Sketcher.Constraint("Horizontal", 0, 2, 4, 2))
sketch2.addConstraint(Sketcher.Constraint("Horizontal", 1, 2, 5, 2))
sketch2.addConstraint(Sketcher.Constraint("Horizontal", 2, 2, 6, 2))
sketch2.addConstraint(Sketcher.Constraint("Horizontal", 9, 3, 8, 2))
sketch2.addConstraint(Sketcher.Constraint("Horizontal", 16, 3, 11, 2))
sketch2.addConstraint(Sketcher.Constraint("Horizontal", 10, 2, 14, 2))
sketch2.addConstraint(Sketcher.Constraint("Horizontal", 11, 2, 15, 2))
sketch2.addConstraint(Sketcher.Constraint("Horizontal", 12, 2, 16, 2))
sketch2.addConstraint(Sketcher.Constraint("Vertical", 6, 3, 10, 3))
sketch2.addConstraint(Sketcher.Constraint("Vertical", 9, 3, 7, 2))
sketch2.addConstraint(Sketcher.Constraint("Vertical", 7, 2, 9, 2))
sketch2.addConstraint(Sketcher.Constraint("Vertical", 6, 2, 10, 2))
sketch2.addConstraint(Sketcher.Constraint("Vertical", 4, 2, 12, 2))
sketch2.addConstraint(Sketcher.Constraint("Diameter", 3, Q("2 mm")))
sketch2.addConstraint(Sketcher.Constraint("Radius", 0, Q("1.5 mm")))
sketch2.addConstraint(Sketcher.Constraint("DistanceX", -1, 1, 8, 2, Q("72 mm")))
sketch2.addConstraint(Sketcher.Constraint("DistanceY", -1, 1, 3, 3, Q("105.3 mm")))
sketch2.addConstraint(Sketcher.Constraint("DistanceY", -1, 1, 7, 3, Q("35.1 mm")))
sketch2.addConstraint(Sketcher.Constraint("DistanceY", 13, 3, -1, 1, Q("35.1 mm")))
sketch2.addConstraint(Sketcher.Constraint("DistanceX", 0, 2, 6, 3, Q("92.148 mm")))
sketch2.addConstraint(Sketcher.Constraint("DistanceY", -1, 1, 0, 3, Q("88.950701 mm")))
sketch2.addConstraint(Sketcher.Constraint("DistanceY", 12, 3, -1, 1, Q("18.750701 mm")))
sketch2.addConstraint(Sketcher.Constraint("DistanceX", 0, 3, -1, 1, Q("45.50112 mm")))
sketch2.addConstraint(Sketcher.Constraint("DistanceX", 2, 2, -1, 1, Q("44.35536 mm")))
pad2 = doc.addObject("PartDesign::Pad", "Pad001")
body.addObject(pad2)
pad2.Profile = sketch2
pad2.Length = 3

# Sketch on XY plane
sketch3 = doc.addObject("Sketcher::SketchObject", "Sketch002")
body.addObject(sketch3)
sketch3.AttachmentSupport = (doc.XY_Plane, [""])
sketch3.MapMode = "FlatFace"
sketch3.addGeometry(Part.Circle(App.Vector(0, 105.3, 0), App.Vector(0, 0, 1), 1), False)
sketch3.addConstraint(Sketcher.Constraint("PointOnObject", 0, 3, -2))
sketch3.addConstraint(Sketcher.Constraint("Diameter", 0, Q("2 mm")))
sketch3.addConstraint(Sketcher.Constraint("DistanceY", -1, 1, 0, 3, Q("105.3 mm")))
pad3 = doc.addObject("PartDesign::Pad", "Pad002")
body.addObject(pad3)
pad3.Profile = sketch3
pad3.Length = 5

doc.recompute()
